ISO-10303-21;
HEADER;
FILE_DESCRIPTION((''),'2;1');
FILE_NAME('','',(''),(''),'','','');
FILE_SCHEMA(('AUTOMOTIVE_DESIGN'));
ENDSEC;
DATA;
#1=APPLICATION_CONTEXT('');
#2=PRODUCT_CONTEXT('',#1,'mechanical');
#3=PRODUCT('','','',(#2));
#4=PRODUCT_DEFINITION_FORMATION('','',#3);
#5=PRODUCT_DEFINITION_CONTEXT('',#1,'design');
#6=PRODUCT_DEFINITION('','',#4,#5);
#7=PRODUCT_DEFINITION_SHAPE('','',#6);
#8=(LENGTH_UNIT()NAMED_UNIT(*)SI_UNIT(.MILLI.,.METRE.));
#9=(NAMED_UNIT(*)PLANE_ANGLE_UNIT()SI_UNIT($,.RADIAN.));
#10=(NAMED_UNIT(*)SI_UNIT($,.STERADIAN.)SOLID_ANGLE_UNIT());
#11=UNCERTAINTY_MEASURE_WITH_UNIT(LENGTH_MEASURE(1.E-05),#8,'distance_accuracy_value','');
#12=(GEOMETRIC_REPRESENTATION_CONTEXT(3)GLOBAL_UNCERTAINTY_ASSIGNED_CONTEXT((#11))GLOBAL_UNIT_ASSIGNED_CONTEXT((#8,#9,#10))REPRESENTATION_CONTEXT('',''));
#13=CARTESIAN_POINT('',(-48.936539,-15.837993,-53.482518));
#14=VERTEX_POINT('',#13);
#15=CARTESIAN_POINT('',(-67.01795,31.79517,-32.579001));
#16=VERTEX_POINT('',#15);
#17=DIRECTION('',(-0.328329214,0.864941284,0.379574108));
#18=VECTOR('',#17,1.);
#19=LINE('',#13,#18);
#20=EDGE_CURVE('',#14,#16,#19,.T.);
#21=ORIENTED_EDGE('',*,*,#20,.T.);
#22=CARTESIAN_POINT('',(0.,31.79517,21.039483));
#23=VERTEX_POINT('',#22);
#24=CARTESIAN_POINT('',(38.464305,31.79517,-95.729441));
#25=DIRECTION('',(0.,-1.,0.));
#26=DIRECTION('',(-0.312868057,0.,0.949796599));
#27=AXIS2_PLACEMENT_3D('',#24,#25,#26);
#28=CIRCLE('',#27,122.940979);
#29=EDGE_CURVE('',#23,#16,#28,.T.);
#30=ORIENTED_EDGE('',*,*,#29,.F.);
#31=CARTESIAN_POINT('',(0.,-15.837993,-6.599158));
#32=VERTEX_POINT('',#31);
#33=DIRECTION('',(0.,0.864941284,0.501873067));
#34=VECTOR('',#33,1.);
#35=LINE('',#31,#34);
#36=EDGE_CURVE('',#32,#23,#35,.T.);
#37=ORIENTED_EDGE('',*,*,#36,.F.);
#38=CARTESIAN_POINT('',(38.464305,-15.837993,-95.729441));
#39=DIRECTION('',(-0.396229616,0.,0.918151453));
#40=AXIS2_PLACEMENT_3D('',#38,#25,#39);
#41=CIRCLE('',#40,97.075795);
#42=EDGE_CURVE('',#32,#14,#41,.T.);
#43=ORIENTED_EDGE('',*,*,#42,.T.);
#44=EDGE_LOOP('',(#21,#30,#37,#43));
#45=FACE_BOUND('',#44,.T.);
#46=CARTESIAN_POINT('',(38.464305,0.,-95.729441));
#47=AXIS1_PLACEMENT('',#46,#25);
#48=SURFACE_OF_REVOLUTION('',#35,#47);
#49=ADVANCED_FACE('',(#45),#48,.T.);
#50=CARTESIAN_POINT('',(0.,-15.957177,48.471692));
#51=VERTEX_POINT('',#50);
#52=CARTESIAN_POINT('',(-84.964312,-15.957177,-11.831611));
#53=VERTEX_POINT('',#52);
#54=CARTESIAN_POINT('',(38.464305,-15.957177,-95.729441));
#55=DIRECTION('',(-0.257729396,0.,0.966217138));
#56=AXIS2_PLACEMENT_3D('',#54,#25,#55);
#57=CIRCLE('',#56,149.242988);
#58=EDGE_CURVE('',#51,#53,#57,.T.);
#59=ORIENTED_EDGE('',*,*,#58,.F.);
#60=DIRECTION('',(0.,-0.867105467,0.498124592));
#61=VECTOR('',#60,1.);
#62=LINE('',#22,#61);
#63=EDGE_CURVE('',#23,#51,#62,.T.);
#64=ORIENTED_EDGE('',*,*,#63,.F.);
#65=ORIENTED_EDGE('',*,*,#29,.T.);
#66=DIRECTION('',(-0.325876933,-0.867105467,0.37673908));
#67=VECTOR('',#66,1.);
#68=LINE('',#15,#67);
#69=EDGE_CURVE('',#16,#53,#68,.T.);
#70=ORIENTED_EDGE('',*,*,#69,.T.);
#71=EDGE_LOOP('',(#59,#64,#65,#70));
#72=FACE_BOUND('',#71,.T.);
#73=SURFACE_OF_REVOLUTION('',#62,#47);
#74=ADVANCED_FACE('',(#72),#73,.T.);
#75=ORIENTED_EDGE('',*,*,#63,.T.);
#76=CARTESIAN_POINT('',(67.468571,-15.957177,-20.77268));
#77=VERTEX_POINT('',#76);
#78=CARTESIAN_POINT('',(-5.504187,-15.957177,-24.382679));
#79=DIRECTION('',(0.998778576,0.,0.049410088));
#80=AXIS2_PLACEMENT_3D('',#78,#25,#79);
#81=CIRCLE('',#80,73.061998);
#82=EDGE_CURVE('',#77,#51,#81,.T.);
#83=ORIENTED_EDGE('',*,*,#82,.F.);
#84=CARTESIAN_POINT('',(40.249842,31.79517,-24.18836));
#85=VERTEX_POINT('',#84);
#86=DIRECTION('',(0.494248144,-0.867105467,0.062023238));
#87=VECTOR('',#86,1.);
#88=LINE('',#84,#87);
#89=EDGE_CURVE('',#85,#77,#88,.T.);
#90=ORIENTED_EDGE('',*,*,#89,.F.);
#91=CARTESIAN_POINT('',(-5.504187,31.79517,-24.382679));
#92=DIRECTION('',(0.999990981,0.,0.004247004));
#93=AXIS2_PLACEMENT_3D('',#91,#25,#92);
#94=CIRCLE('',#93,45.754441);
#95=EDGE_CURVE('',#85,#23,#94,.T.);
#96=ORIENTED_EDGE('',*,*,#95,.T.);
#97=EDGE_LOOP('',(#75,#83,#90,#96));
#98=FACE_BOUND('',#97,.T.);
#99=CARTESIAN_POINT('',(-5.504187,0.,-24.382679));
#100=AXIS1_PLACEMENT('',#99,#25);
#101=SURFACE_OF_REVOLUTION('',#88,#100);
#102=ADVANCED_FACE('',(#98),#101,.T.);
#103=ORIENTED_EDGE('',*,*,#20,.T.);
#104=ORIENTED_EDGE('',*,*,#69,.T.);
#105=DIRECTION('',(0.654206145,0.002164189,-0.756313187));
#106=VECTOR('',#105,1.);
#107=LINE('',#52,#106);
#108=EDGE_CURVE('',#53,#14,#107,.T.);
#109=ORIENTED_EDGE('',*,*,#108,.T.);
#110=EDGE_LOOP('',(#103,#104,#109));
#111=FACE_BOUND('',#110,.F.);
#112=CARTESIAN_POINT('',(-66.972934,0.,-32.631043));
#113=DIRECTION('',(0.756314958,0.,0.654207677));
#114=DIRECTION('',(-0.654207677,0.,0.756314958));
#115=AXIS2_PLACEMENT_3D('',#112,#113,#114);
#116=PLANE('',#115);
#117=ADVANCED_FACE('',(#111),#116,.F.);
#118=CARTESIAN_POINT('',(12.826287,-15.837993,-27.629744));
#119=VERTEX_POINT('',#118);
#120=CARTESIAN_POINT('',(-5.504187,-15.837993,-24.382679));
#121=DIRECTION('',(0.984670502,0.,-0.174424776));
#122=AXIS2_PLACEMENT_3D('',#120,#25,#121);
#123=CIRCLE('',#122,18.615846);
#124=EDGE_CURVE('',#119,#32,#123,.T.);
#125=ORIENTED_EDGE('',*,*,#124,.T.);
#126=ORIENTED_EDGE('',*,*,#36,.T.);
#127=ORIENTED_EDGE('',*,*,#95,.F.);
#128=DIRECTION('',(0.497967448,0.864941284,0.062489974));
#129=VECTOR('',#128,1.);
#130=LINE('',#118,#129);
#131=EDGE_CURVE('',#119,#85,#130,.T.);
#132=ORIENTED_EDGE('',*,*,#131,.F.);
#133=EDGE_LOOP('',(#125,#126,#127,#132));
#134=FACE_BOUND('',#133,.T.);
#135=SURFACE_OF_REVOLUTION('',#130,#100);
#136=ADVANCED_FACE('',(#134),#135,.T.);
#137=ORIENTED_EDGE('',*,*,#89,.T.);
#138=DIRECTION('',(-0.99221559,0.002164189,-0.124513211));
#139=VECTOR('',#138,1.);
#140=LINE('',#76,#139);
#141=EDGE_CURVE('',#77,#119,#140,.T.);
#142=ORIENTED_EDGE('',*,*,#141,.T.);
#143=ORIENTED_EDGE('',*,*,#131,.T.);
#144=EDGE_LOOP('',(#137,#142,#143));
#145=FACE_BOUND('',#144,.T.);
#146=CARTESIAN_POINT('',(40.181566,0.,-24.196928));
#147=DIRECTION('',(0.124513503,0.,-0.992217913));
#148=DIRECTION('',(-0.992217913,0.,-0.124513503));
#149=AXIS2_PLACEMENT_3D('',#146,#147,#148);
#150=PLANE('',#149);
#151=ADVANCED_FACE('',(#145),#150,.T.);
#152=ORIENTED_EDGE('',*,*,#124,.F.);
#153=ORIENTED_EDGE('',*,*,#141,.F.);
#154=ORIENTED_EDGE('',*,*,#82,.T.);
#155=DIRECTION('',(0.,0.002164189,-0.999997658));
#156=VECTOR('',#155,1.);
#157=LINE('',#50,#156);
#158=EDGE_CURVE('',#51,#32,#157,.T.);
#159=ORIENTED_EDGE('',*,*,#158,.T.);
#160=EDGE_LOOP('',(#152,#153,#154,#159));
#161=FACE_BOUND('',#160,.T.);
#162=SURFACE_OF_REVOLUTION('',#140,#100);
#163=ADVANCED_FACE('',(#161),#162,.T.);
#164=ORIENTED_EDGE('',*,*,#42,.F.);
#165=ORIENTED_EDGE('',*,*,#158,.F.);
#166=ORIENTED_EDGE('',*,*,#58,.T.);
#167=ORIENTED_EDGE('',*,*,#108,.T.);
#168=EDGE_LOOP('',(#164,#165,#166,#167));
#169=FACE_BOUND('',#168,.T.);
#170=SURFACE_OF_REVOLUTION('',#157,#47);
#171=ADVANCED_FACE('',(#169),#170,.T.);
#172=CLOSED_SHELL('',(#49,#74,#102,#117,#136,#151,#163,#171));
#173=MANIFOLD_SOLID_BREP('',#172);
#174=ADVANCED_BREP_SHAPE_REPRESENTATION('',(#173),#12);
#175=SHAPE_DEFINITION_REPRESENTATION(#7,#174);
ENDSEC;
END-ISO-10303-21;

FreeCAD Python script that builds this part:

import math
import FreeCAD as App
import Part
import Sketcher
from FreeCAD import Vector

doc = App.newDocument("Part")
body = doc.addObject("PartDesign::Body", "Body")

sketch1 = body.newObject("Sketcher::SketchObject", "Sketch")
sketch1.AttachmentSupport = (doc.getObject("YZ_Plane"), [""])
sketch1.MapMode = "FlatFace"
sketch1.addGeometry(Part.LineSegment(Vector(31.79517, 21.039483, 0), Vector(-15.957177, 48.471692, 0)), False)
sketch1.addGeometry(Part.LineSegment(Vector(-15.957177, 48.471692, 0), Vector(-15.837993, -6.599158, 0)), False)
sketch1.addGeometry(Part.LineSegment(Vector(-15.837993, -6.599158, 0), Vector(31.79517, 21.039483, 0)), False)
sketch1.addConstraint(Sketcher.Constraint("Coincident", 0, 2, 1, 1))
sketch1.addConstraint(Sketcher.Constraint("Coincident", 1, 2, 2, 1))
sketch1.addConstraint(Sketcher.Constraint("Coincident", 2, 2, 0, 1))
sketch1.addConstraint(Sketcher.Constraint("Equal", 0, 1))
sketch1.addConstraint(Sketcher.Constraint("Equal", 1, 2))
sketch1.addConstraint(Sketcher.Constraint("Distance", 0, 55.070979))
sketch1.addConstraint(Sketcher.Constraint("DistanceY", -1, 1, 0, 2, 48.471692))
sketch1.addConstraint(Sketcher.Constraint("DistanceX", -1, 1, 2, 2, 31.79517))
sketch1.addConstraint(Sketcher.Constraint("DistanceY", 1, 2, 2, 2, 27.638641))

sketch2 = body.newObject("Sketcher::SketchObject", "Sketch001")
sketch2.AttachmentSupport = (doc.getObject("XZ_Plane"), [""])
sketch2.MapMode = "FlatFace"
sketch2.addGeometry(Part.ArcOfCircle(Part.Circle(Vector(-5.504187, -24.382679, 0), Vector(0, 0, 1), 45.686131), math.radians(0.232955), math.radians(83.080293)), False)
sketch2.addConstraint(Sketcher.Constraint("PointOnObject", 0, 2, -2))
sketch2.addConstraint(Sketcher.Constraint("Radius", 0, 45.686131))
sketch2.addConstraint(Sketcher.Constraint("DistanceY", 0, 1, 0, 2, 45.1676))
sketch2.addConstraint(Sketcher.Constraint("DistanceY", 0, 3, -1, 1, 24.382679))
sketch2.addConstraint(Sketcher.Constraint("DistanceY", 0, 1, -1, 1, 24.196928))
doc.recompute()

additivepipe = body.newObject("PartDesign::AdditivePipe", "AdditivePipe")
additivepipe.Profile = sketch1
additivepipe.Spine = (sketch2, ["Edge1"])

sketch3 = body.newObject("Sketcher::SketchObject", "Sketch002")
sketch3.AttachmentSupport = (doc.getObject("YZ_Plane"), [""])
sketch3.MapMode = "FlatFace"
sketch3.addGeometry(Part.LineSegment(Vector(31.79517, 21.039483, 0), Vector(-15.957177, 48.471692, 0)), False)
sketch3.addGeometry(Part.LineSegment(Vector(-15.957177, 48.471692, 0), Vector(-15.837993, -6.599158, 0)), False)
sketch3.addGeometry(Part.LineSegment(Vector(-15.837993, -6.599158, 0), Vector(31.79517, 21.039483, 0)), False)
sketch3.addConstraint(Sketcher.Constraint("Coincident", 0, 2, 1, 1))
sketch3.addConstraint(Sketcher.Constraint("Coincident", 1, 2, 2, 1))
sketch3.addConstraint(Sketcher.Constraint("Coincident", 2, 2, 0, 1))
sketch3.addConstraint(Sketcher.Constraint("Equal", 0, 1))
sketch3.addConstraint(Sketcher.Constraint("Equal", 1, 2))
sketch3.addConstraint(Sketcher.Constraint("Distance", 0, 55.070979))
sketch3.addConstraint(Sketcher.Constraint("DistanceY", -1, 1, 0, 2, 48.471692))
sketch3.addConstraint(Sketcher.Constraint("DistanceX", -1, 1, 2, 2, 31.79517))
sketch3.addConstraint(Sketcher.Constraint("DistanceY", 1, 2, 2, 2, 27.638641))

sketch4 = body.newObject("Sketcher::SketchObject", "Sketch003")
sketch4.AttachmentSupport = (doc.getObject("XZ_Plane"), [""])
sketch4.MapMode = "FlatFace"
sketch4.addGeometry(Part.ArcOfCircle(Part.Circle(Vector(38.464305, -95.729441, 0), Vector(0, 0, 1), 123.154212), math.radians(108.199483), math.radians(149.059082)), False)
sketch4.addConstraint(Sketcher.Constraint("PointOnObject", 0, 1, -2))
sketch4.addConstraint(Sketcher.Constraint("Radius", 0, 123.154212))
sketch4.addConstraint(Sketcher.Constraint("DistanceY", 0, 3, -1, 1, 95.729441))
sketch4.addConstraint(Sketcher.Constraint("DistanceX", 0, 2, -1, 1, 67.164809))
sketch4.addConstraint(Sketcher.Constraint("DistanceY", 0, 2, -1, 1, 32.409221))
doc.recompute()

additivepipe2 = body.newObject("PartDesign::AdditivePipe", "AdditivePipe001")
additivepipe2.Profile = sketch3
additivepipe2.Spine = (sketch4, ["Edge1"])

doc.recompute()
